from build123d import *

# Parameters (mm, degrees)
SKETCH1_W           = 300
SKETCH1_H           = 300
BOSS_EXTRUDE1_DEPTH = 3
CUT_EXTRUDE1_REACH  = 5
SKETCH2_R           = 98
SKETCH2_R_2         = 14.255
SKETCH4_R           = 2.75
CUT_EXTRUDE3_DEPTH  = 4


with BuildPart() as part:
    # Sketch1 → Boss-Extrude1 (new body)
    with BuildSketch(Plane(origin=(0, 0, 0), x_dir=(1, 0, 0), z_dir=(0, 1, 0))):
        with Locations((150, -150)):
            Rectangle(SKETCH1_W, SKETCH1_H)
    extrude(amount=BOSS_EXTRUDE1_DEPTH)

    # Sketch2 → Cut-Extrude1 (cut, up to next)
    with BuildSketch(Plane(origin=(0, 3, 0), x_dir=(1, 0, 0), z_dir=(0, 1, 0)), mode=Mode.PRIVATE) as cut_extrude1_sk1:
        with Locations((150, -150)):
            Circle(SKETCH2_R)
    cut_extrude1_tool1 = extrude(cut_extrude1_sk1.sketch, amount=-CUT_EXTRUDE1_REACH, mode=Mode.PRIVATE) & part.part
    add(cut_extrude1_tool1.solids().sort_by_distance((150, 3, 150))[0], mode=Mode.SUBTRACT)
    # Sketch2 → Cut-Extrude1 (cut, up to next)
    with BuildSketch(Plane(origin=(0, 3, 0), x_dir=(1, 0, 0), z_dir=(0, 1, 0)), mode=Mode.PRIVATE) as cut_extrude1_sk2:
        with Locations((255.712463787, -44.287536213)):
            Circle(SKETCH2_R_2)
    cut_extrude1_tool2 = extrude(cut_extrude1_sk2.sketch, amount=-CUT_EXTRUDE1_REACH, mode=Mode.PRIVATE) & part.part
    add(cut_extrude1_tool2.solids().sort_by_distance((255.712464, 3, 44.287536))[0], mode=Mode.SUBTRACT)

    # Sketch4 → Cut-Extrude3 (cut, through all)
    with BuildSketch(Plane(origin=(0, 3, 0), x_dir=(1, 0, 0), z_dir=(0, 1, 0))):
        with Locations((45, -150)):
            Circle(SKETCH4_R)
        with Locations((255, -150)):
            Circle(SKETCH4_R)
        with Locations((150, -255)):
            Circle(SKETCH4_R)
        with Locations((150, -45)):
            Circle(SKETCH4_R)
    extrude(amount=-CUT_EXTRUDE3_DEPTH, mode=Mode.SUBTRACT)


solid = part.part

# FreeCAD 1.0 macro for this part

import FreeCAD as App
import Part
import Sketcher

V = App.Vector
Q = App.Units.Quantity


def add_polygon(sketch, points):
    """Adds a closed chain of lines whose ends are joined by coincident constraints."""
    first, n = sketch.GeometryCount, len(points)
    for a, b in zip(points, points[1:] + points[:1]):
        sketch.addGeometry(Part.LineSegment(App.Vector(*a, 0), App.Vector(*b, 0)), False)
    for i in range(n):
        sketch.addConstraint(Sketcher.Constraint("Coincident", first + i, 2, first + (i + 1) % n, 1))

doc = App.newDocument("Part")
params = doc.addObject("Spreadsheet::Sheet", "Params")
for row, (alias, value) in enumerate([
    ("sketch1_width", "300 mm"),
    ("pad1_length", "3 mm"),
    ("sketch2_diameter", "196 mm"),
    ("sketch3_diameter", "28.51 mm"),
    ("sketch4_diameter", "5.5 mm"),
], start=1):
    params.set(f"A{row}", alias)
    params.set(f"B{row}", "=" + value)
    params.setAlias(f"B{row}", alias)

body = doc.addObject("PartDesign::Body", "Body")

sketch1 = body.newObject("Sketcher::SketchObject", "Sketch")
sketch1.AttachmentSupport = (doc.getObject("XZ_Plane"), [""])
sketch1.MapMode = "FlatFace"
add_polygon(sketch1, [(0, 0), (0, 300), (300, 300), (300, 0)])
sketch1.addConstraint([
    Sketcher.Constraint("Vertical", 0),
    Sketcher.Constraint("Horizontal", 1),
    Sketcher.Constraint("Vertical", 2),
    Sketcher.Constraint("Horizontal", 3),
    Sketcher.Constraint("Coincident", 3, 2, -1, 1),
    Sketcher.Constraint("Equal", 3, 0),
    Sketcher.Constraint("DistanceX", 1, 1, 1, 2, Q("300 mm")),
])
sketch1.setExpression("Constraints[10]", "Params.sketch1_width")
pad1 = body.newObject("PartDesign::Pad", "Pad")
pad1.Profile = sketch1
pad1.setExpression("Length", "Params.pad1_length")
pad1.Reversed = True

sketch2 = body.newObject("Sketcher::SketchObject", "Sketch001")
sketch2.AttachmentSupport = (doc.getObject("XZ_Plane"), [""])
sketch2.MapMode = "FlatFace"
sketch2.AttachmentOffset = App.Placement(V(0, 0, -3), App.Rotation())
sketch2.addGeometry(Part.Circle(V(150, 150, 0), V(0, 0, 1), 98), False)
sketch2.addConstraint([
    Sketcher.Constraint("Diameter", 0, Q("196 mm")),
    Sketcher.Constraint("DistanceX", -1, 1, 0, 3, Q("150 mm")),
    Sketcher.Constraint("DistanceY", -1, 1, 0, 3, Q("150 mm")),
])
sketch2.setExpression("Constraints[0]", "Params.sketch2_diameter")
pocket1 = body.newObject("PartDesign::Pocket", "Pocket")
pocket1.Profile = sketch2
pocket1.Type = "UpToFirst"
pocket1.Reversed = True

sketch3 = body.newObject("Sketcher::SketchObject", "Sketch002")
sketch3.AttachmentSupport = (doc.getObject("XZ_Plane"), [""])
sketch3.MapMode = "FlatFace"
sketch3.AttachmentOffset = App.Placement(V(0, 0, -3), App.Rotation())
sketch3.addGeometry(Part.Circle(V(256, 44, 0), V(0, 0, 1), 14), False)
sketch3.addConstraint([
    Sketcher.Constraint("Diameter", 0, Q("28.51 mm")),
    Sketcher.Constraint("DistanceX", -1, 1, 0, 3, Q("255.712464 mm")),
    Sketcher.Constraint("DistanceY", -1, 1, 0, 3, Q("44.287536 mm")),
])
sketch3.setExpression("Constraints[0]", "Params.sketch3_diameter")
pocket2 = body.newObject("PartDesign::Pocket", "Pocket001")
pocket2.Profile = sketch3
pocket2.Type = "UpToFirst"
pocket2.Reversed = True

sketch4 = body.newObject("Sketcher::SketchObject", "Sketch003")
sketch4.AttachmentSupport = (doc.getObject("XZ_Plane"), [""])
sketch4.MapMode = "FlatFace"
sketch4.AttachmentOffset = App.Placement(V(0, 0, -3), App.Rotation())
sketch4.addGeometry([
    Part.Circle(V(45, 150, 0), V(0, 0, 1), 2.8),
    Part.Circle(V(255, 150, 0), V(0, 0, 1), 2.8),
    Part.Circle(V(150, 255, 0), V(0, 0, 1), 2.8),
    Part.Circle(V(150, 45, 0), V(0, 0, 1), 2.8),
], False)
sketch4.addConstraint([
    Sketcher.Constraint("Equal", 0, 1),
    Sketcher.Constraint("Equal", 1, 2),
    Sketcher.Constraint("Equal", 2, 3),
    Sketcher.Constraint("Horizontal", 0, 3, 1, 3),
    Sketcher.Constraint("Vertical", 2, 3, 3, 3),
    Sketcher.Constraint("Diameter", 0, Q("5.5 mm")),
    Sketcher.Constraint("DistanceX", -1, 1, 0, 3, Q("45 mm")),
    Sketcher.Constraint("DistanceY", -1, 1, 0, 3, Q("150 mm")),
    Sketcher.Constraint("DistanceX", -1, 1, 1, 3, Q("255 mm")),
    Sketcher.Constraint("DistanceX", -1, 1, 2, 3, Q("150 mm")),
    Sketcher.Constraint("DistanceY", -1, 1, 2, 3, Q("255 mm")),
    Sketcher.Constraint("DistanceY", -1, 1, 3, 3, Q("45 mm")),
])
sketch4.setExpression("Constraints[5]", "Params.sketch4_diameter")
pocket3 = body.newObject("PartDesign::Pocket", "Pocket002")
pocket3.Profile = sketch4
pocket3.Type = "ThroughAll"
pocket3.Reversed = True

doc.recompute()
